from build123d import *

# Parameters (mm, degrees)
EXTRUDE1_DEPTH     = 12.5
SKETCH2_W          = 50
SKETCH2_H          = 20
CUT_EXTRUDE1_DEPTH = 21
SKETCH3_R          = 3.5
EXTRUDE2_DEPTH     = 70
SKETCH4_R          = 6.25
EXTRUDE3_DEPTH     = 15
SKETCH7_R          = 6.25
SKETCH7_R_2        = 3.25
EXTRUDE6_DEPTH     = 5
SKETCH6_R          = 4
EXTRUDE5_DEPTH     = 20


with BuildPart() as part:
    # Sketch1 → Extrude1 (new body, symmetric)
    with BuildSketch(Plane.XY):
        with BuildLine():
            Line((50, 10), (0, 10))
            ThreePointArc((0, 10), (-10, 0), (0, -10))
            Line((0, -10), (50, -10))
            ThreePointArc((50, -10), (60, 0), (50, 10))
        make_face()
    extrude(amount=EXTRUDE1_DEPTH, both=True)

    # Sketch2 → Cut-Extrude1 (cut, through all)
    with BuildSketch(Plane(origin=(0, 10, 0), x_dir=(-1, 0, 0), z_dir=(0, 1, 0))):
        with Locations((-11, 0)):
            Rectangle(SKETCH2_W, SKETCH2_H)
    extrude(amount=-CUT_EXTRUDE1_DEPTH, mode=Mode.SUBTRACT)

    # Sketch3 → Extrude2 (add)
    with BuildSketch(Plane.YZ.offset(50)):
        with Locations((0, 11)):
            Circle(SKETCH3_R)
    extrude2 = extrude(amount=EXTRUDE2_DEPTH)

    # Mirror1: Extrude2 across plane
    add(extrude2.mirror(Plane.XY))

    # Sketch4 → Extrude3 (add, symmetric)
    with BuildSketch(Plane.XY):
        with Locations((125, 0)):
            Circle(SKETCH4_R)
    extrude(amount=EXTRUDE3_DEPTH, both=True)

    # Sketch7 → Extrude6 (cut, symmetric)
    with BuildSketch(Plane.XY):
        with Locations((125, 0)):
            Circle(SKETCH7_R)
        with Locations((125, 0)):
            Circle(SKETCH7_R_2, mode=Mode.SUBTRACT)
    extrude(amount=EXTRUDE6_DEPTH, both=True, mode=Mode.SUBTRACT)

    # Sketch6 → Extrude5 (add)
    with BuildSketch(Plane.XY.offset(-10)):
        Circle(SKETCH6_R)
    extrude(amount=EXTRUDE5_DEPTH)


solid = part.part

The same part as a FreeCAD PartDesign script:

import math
import FreeCAD as App
import Part
import Sketcher

V = App.Vector

doc = App.newDocument("Part")
body = doc.addObject("PartDesign::Body", "Body")

sketch1 = doc.addObject("Sketcher::SketchObject", "Sketch")
body.addObject(sketch1)
sketch1.AttachmentSupport = (doc.XY_Plane, [""])
sketch1.MapMode = "FlatFace"
sketch1.addGeometry(Part.LineSegment(V(50, 10, 0), V(0, 10, 0)), False)
sketch1.addGeometry(Part.ArcOfCircle(Part.Circle(V(0, 0, 0), V(0, 0, 1), 10), math.radians(90), math.radians(270)), False)
sketch1.addGeometry(Part.LineSegment(V(0, -10, 0), V(50, -10, 0)), False)
sketch1.addGeometry(Part.ArcOfCircle(Part.Circle(V(50, 0, 0), V(0, 0, 1), 10), math.radians(-90), math.radians(90)), False)
sketch1.addConstraint(Sketcher.Constraint("Tangent", 0, 2, 1, 1))
sketch1.addConstraint(Sketcher.Constraint("Tangent", 1, 2, 2, 1))
sketch1.addConstraint(Sketcher.Constraint("Tangent", 2, 2, 3, 1))
sketch1.addConstraint(Sketcher.Constraint("Tangent", 3, 2, 0, 1))
sketch1.addConstraint(Sketcher.Constraint("Horizontal", 0))
sketch1.addConstraint(Sketcher.Constraint("Horizontal", 2))
sketch1.addConstraint(Sketcher.Constraint("Coincident", 1, 3, -1, 1))
sketch1.addConstraint(Sketcher.Constraint("Radius", 1, 10.0))
sketch1.addConstraint(Sketcher.Constraint("DistanceX", 0, 2, 0, 1, 50.0))
pad1 = doc.addObject("PartDesign::Pad", "Pad")
body.addObject(pad1)
pad1.Profile = sketch1
pad1.Length = 25
pad1.Midplane = True

sketch2 = doc.addObject("Sketcher::SketchObject", "Sketch001")
body.addObject(sketch2)
sketch2.AttachmentSupport = (doc.XZ_Plane, [""])
sketch2.MapMode = "FlatFace"
sketch2.AttachmentOffset = App.Placement(V(0, 0, -10), App.Rotation())
sketch2.addGeometry(Part.LineSegment(V(36, 10, 0), V(36, -10, 0)), False)
sketch2.addGeometry(Part.LineSegment(V(36, -10, 0), V(-14, -10, 0)), False)
sketch2.addGeometry(Part.LineSegment(V(-14, -10, 0), V(-14, 10, 0)), False)
sketch2.addGeometry(Part.LineSegment(V(-14, 10, 0), V(36, 10, 0)), False)
sketch2.addConstraint(Sketcher.Constraint("Coincident", 0, 2, 1, 1))
sketch2.addConstraint(Sketcher.Constraint("Coincident", 1, 2, 2, 1))
sketch2.addConstraint(Sketcher.Constraint("Coincident", 2, 2, 3, 1))
sketch2.addConstraint(Sketcher.Constraint("Coincident", 3, 2, 0, 1))
sketch2.addConstraint(Sketcher.Constraint("Vertical", 0))
sketch2.addConstraint(Sketcher.Constraint("Horizontal", 1))
sketch2.addConstraint(Sketcher.Constraint("Vertical", 2))
sketch2.addConstraint(Sketcher.Constraint("Horizontal", 3))
sketch2.addConstraint(Sketcher.Constraint("DistanceX", 1, 2, 1, 1, 50.0))
sketch2.addConstraint(Sketcher.Constraint("DistanceY", 0, 2, 0, 1, 20.0))
sketch2.addConstraint(Sketcher.Constraint("DistanceX", -1, 1, 0, 2, 36.0))
sketch2.addConstraint(Sketcher.Constraint("DistanceY", 0, 2, -1, 1, 10.0))
pocket1 = doc.addObject("PartDesign::Pocket", "Pocket")
body.addObject(pocket1)
pocket1.Profile = sketch2
pocket1.Type = "ThroughAll"
pocket1.Reversed = True

sketch3 = doc.addObject("Sketcher::SketchObject", "Sketch002")
body.addObject(sketch3)
sketch3.AttachmentSupport = (doc.YZ_Plane, [""])
sketch3.MapMode = "FlatFace"
sketch3.AttachmentOffset = App.Placement(V(0, 0, 50), App.Rotation())
sketch3.addGeometry(Part.Circle(V(0, 11, 0), V(0, 0, 1), 3.5), False)
sketch3.addConstraint(Sketcher.Constraint("PointOnObject", 0, 3, -2))
sketch3.addConstraint(Sketcher.Constraint("Diameter", 0, 7.0))
sketch3.addConstraint(Sketcher.Constraint("DistanceY", -1, 1, 0, 3, 11.0))
pad2 = doc.addObject("PartDesign::Pad", "Pad001")
body.addObject(pad2)
pad2.Profile = sketch3
pad2.Length = 70
doc.recompute()

mirrored = doc.addObject("PartDesign::Mirrored", "Mirrored")
body.addObject(mirrored)
mirrored.Originals = [pad2]
mirrored.MirrorPlane = (doc.XY_Plane, [""])
body.Tip = mirrored

sketch4 = doc.addObject("Sketcher::SketchObject", "Sketch003")
body.addObject(sketch4)
sketch4.AttachmentSupport = (doc.XY_Plane, [""])
sketch4.MapMode = "FlatFace"
sketch4.addGeometry(Part.Circle(V(125, 0, 0), V(0, 0, 1), 6), False)
sketch4.addConstraint(Sketcher.Constraint("PointOnObject", 0, 3, -1))
sketch4.addConstraint(Sketcher.Constraint("Diameter", 0, 12.5))
sketch4.addConstraint(Sketcher.Constraint("DistanceX", -1, 1, 0, 3, 125.0))
pad3 = doc.addObject("PartDesign::Pad", "Pad002")
body.addObject(pad3)
pad3.Profile = sketch4
pad3.Length = 30
pad3.Midplane = True

sketch5 = doc.addObject("Sketcher::SketchObject", "Sketch004")
body.addObject(sketch5)
sketch5.AttachmentSupport = (doc.XY_Plane, [""])
sketch5.MapMode = "FlatFace"
sketch5.addGeometry(Part.Circle(V(125, 0, 0), V(0, 0, 1), 6.2), False)
sketch5.addGeometry(Part.Circle(V(125, 0, 0), V(0, 0, 1), 3.2), False)
sketch5.addConstraint(Sketcher.Constraint("Coincident", 1, 3, 0, 3))
sketch5.addConstraint(Sketcher.Constraint("PointOnObject", 0, 3, -1))
sketch5.addConstraint(Sketcher.Constraint("Diameter", 0, 12.5))
sketch5.addConstraint(Sketcher.Constraint("Diameter", 1, 6.5))
sketch5.addConstraint(Sketcher.Constraint("DistanceX", -1, 1, 0, 3, 125.0))
pocket2 = doc.addObject("PartDesign::Pocket", "Pocket001")
body.addObject(pocket2)
pocket2.Profile = sketch5
pocket2.Length = 10
pocket2.Midplane = True

sketch6 = doc.addObject("Sketcher::SketchObject", "Sketch005")
body.addObject(sketch6)
sketch6.AttachmentSupport = (doc.XY_Plane, [""])
sketch6.MapMode = "FlatFace"
sketch6.AttachmentOffset = App.Placement(V(0, 0, -10), App.Rotation())
sketch6.addGeometry(Part.Circle(V(0, 0, 0), V(0, 0, 1), 4), False)
sketch6.addConstraint(Sketcher.Constraint("Coincident", 0, 3, -1, 1))
sketch6.addConstraint(Sketcher.Constraint("Diameter", 0, 8.0))
pad4 = doc.addObject("PartDesign::Pad", "Pad003")
body.addObject(pad4)
pad4.Profile = sketch6
pad4.Length = 20

doc.recompute()
